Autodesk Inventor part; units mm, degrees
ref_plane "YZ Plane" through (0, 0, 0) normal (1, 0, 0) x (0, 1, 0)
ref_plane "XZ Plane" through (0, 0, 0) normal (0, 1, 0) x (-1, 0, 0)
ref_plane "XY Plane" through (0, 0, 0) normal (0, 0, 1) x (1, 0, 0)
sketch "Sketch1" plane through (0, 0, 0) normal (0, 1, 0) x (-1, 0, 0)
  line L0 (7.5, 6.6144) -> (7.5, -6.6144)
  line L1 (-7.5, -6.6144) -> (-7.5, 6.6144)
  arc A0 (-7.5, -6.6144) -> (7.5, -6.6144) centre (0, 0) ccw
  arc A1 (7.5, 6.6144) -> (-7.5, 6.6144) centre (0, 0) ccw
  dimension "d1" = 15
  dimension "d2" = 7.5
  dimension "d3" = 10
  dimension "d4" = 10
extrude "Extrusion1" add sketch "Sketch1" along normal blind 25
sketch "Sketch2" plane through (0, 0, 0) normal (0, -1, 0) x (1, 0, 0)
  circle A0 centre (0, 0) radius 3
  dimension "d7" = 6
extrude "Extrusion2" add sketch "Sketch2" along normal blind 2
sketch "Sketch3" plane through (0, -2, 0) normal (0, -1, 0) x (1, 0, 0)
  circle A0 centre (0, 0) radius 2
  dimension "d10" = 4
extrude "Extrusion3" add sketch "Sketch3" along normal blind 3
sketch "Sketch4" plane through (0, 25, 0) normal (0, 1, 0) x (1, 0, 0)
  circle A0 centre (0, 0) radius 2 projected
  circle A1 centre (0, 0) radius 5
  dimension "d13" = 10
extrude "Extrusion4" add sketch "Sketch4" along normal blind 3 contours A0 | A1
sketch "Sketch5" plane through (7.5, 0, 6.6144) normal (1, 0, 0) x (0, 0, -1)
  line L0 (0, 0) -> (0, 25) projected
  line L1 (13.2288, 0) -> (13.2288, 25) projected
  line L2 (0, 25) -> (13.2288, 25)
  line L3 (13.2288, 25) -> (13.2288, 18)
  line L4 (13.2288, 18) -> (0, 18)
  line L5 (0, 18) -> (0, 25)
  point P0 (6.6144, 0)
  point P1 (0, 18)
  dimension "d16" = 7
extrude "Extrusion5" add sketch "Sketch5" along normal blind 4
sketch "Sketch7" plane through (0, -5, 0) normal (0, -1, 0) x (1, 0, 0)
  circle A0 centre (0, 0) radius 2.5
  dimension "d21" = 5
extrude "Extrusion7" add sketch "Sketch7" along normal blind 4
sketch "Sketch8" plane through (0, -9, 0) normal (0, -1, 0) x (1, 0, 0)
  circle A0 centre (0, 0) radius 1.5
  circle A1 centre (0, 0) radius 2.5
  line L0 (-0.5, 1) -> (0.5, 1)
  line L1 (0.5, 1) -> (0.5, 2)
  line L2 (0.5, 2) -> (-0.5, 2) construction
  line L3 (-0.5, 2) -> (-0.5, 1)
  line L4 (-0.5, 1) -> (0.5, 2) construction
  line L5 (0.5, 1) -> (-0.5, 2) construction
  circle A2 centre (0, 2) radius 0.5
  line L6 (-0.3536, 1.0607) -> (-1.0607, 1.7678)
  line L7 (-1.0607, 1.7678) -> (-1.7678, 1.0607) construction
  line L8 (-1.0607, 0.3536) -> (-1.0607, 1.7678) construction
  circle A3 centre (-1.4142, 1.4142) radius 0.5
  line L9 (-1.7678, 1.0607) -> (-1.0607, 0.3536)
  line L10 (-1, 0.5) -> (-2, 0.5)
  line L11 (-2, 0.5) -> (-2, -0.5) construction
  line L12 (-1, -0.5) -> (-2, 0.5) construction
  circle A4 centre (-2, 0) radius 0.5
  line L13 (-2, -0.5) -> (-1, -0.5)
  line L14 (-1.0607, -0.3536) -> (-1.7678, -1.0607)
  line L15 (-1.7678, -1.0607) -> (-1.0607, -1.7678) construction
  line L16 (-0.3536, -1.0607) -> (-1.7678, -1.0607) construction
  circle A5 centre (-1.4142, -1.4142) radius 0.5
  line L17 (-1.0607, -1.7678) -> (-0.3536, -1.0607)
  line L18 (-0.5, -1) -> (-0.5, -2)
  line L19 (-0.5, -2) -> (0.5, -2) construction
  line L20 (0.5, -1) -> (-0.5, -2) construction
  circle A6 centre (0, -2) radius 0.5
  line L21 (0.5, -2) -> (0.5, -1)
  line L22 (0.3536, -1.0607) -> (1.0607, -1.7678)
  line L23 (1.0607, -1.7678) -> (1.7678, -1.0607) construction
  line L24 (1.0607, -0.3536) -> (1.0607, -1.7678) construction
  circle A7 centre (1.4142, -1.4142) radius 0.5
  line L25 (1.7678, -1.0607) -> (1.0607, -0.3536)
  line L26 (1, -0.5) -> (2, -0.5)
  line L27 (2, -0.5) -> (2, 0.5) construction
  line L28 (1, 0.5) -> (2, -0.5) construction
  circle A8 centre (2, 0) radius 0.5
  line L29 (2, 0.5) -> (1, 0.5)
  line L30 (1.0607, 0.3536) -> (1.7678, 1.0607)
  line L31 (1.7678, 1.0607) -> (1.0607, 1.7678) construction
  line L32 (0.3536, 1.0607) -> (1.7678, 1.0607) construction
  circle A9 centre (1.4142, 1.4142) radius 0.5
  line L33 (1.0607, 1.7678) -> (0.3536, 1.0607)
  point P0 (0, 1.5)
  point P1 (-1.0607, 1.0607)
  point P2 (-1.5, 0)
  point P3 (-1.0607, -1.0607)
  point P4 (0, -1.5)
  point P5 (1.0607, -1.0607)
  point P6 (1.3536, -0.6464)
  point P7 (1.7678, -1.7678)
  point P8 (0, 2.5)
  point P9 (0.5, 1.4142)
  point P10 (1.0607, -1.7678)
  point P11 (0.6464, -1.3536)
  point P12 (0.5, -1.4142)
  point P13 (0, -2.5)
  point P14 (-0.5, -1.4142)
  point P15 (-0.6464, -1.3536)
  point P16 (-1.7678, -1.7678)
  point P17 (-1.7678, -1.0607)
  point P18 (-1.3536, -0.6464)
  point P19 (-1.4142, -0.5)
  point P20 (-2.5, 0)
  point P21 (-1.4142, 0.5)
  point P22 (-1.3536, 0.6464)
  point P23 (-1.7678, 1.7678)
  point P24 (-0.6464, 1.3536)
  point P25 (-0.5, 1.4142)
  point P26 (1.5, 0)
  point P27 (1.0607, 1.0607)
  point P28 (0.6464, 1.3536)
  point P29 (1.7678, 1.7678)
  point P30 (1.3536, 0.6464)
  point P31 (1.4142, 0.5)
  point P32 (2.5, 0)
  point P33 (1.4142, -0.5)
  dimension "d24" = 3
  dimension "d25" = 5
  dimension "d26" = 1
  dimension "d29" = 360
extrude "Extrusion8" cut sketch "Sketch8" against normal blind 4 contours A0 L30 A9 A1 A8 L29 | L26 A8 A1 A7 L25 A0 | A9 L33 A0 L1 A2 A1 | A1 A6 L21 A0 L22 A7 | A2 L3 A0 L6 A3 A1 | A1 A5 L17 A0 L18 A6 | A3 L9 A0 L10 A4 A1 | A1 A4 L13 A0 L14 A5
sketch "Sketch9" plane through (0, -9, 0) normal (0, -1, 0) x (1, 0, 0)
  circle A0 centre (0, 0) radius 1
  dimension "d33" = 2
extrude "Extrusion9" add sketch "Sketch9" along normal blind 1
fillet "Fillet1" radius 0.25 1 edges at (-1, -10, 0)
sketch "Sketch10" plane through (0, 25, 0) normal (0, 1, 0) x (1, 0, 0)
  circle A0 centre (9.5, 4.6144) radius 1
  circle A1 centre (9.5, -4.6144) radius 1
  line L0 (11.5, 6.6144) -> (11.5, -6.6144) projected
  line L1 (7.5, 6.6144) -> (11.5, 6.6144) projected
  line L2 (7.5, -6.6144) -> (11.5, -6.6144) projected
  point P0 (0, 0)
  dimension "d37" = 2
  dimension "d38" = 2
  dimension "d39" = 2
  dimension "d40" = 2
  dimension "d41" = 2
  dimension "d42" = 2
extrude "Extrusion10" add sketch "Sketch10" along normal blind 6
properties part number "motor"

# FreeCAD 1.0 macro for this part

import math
import FreeCAD as App
import Part
import Sketcher
from FreeCAD import Vector
Q = App.Units.Quantity


def edges_at(feature, points):
    """Names of the edges that pass closest to the given points."""
    edges = feature.Shape.Edges
    near = lambda p: min(range(len(edges)), key=lambda i: edges[i].distToShape(Part.Vertex(*p))[0])
    return sorted({f"Edge{near(p) + 1}" for p in points})

doc = App.newDocument("Part")
params = doc.addObject("Spreadsheet::Sheet", "Params")
for row, (alias, value) in enumerate([
    ("sketch1_radius", "10 mm"),
    ("pad1_length", "25 mm"),
    ("sketch2_diameter", "6 mm"),
    ("pad2_length", "2 mm"),
    ("sketch3_diameter", "4 mm"),
    ("pad3_length", "3 mm"),
    ("sketch4_diameter", "10 mm"),
    ("pad4_length", "3 mm"),
    ("sketch5_width", "7 mm"),
    ("pad5_length", "4 mm"),
    ("sketch6_diameter", "5 mm"),
    ("pad6_length", "4 mm"),
    ("sketch7_radius", "1.5 mm"),
    ("sketch7_radius2", "0.5 mm"),
    ("pocket1_length", "4 mm"),
    ("sketch8_diameter", "2 mm"),
    ("pad7_length", "1 mm"),
    ("fillet_radius", "0.25 mm"),
    ("sketch9_diameter", "2 mm"),
    ("pad8_length", "6 mm"),
], start=1):
    params.set(f"A{row}", alias)
    params.set(f"B{row}", "=" + value)
    params.setAlias(f"B{row}", alias)

body = doc.addObject("PartDesign::Body", "Body")

# Sketch on XZ plane
sketch1 = body.newObject("Sketcher::SketchObject", "Sketch")
sketch1.AttachmentSupport = (doc.getObject("XZ_Plane"), [""])
sketch1.MapMode = "FlatFace"
sketch1.addGeometry([
    Part.LineSegment(Vector(-8, -7, 0), Vector(-8, 7, 0)),
    Part.ArcOfCircle(Part.Circle(Vector(0, 0, 0), Vector(0, 0, 1), 10), math.radians(41), math.radians(139)),
    Part.LineSegment(Vector(8, 7, 0), Vector(8, -7, 0)),
    Part.ArcOfCircle(Part.Circle(Vector(0, 0, 0), Vector(0, 0, 1), 10), math.radians(-139), math.radians(-41)),
], False)
sketch1.addConstraint([
    Sketcher.Constraint("Coincident", 0, 2, 1, 2),
    Sketcher.Constraint("Coincident", 1, 1, 2, 1),
    Sketcher.Constraint("Coincident", 2, 2, 3, 2),
    Sketcher.Constraint("Coincident", 3, 1, 0, 1),
    Sketcher.Constraint("Vertical", 0),
    Sketcher.Constraint("Vertical", 2),
    Sketcher.Constraint("Coincident", 1, 3, -1, 1),
    Sketcher.Constraint("Coincident", 3, 3, -1, 1),
    Sketcher.Constraint("Equal", 1, 3),
    Sketcher.Constraint("Horizontal", 0, 2, 1, 1),
    Sketcher.Constraint("Radius", 1, Q("10 mm")),
    Sketcher.Constraint("DistanceX", 0, 2, 1, 1, Q("15 mm")),
])
sketch1.setExpression("Constraints[10]", "Params.sketch1_radius")
pad1 = body.newObject("PartDesign::Pad", "Pad")
pad1.Profile = sketch1
pad1.setExpression("Length", "Params.pad1_length")
pad1.Reversed = True

# Sketch on XZ plane
sketch2 = body.newObject("Sketcher::SketchObject", "Sketch001")
sketch2.AttachmentSupport = (doc.getObject("XZ_Plane"), [""])
sketch2.MapMode = "FlatFace"
sketch2.addGeometry(Part.Circle(Vector(0, 0, 0), Vector(0, 0, 1), 3), False)
sketch2.addConstraint([
    Sketcher.Constraint("Coincident", 0, 3, -1, 1),
    Sketcher.Constraint("Diameter", 0, Q("6 mm")),
])
sketch2.setExpression("Constraints[1]", "Params.sketch2_diameter")
pad2 = body.newObject("PartDesign::Pad", "Pad001")
pad2.Profile = sketch2
pad2.setExpression("Length", "Params.pad2_length")

# Sketch on XZ plane
sketch3 = body.newObject("Sketcher::SketchObject", "Sketch002")
sketch3.AttachmentSupport = (doc.getObject("XZ_Plane"), [""])
sketch3.MapMode = "FlatFace"
sketch3.AttachmentOffset = App.Placement(Vector(0, 0, 2), App.Rotation())
sketch3.addGeometry(Part.Circle(Vector(0, 0, 0), Vector(0, 0, 1), 2), False)
sketch3.addConstraint([
    Sketcher.Constraint("Coincident", 0, 3, -1, 1),
    Sketcher.Constraint("Diameter", 0, Q("4 mm")),
])
sketch3.setExpression("Constraints[1]", "Params.sketch3_diameter")
pad3 = body.newObject("PartDesign::Pad", "Pad002")
pad3.Profile = sketch3
pad3.setExpression("Length", "Params.pad3_length")

# Sketch on XZ plane
sketch4 = body.newObject("Sketcher::SketchObject", "Sketch003")
sketch4.AttachmentSupport = (doc.getObject("XZ_Plane"), [""])
sketch4.MapMode = "FlatFace"
sketch4.AttachmentOffset = App.Placement(Vector(0, 0, -25), App.Rotation())
sketch4.addGeometry(Part.Circle(Vector(0, 0, 0), Vector(0, 0, 1), 5), False)
sketch4.addConstraint([
    Sketcher.Constraint("Coincident", 0, 3, -1, 1),
    Sketcher.Constraint("Diameter", 0, Q("10 mm")),
])
sketch4.setExpression("Constraints[1]", "Params.sketch4_diameter")
pad4 = body.newObject("PartDesign::Pad", "Pad003")
pad4.Profile = sketch4
pad4.setExpression("Length", "Params.pad4_length")
pad4.Reversed = True

# Sketch on YZ plane
sketch5 = body.newObject("Sketcher::SketchObject", "Sketch004")
sketch5.AttachmentSupport = (doc.getObject("YZ_Plane"), [""])
sketch5.MapMode = "FlatFace"
sketch5.AttachmentOffset = App.Placement(Vector(0, 0, 7.5), App.Rotation())
sketch5.addGeometry([
    Part.LineSegment(Vector(25, 7, 0), Vector(18, 7, 0)),
    Part.LineSegment(Vector(18, 7, 0), Vector(18, -7, 0)),
    Part.LineSegment(Vector(18, -7, 0), Vector(25, -7, 0)),
    Part.LineSegment(Vector(25, -7, 0), Vector(25, 7, 0)),
], False)
sketch5.addConstraint([
    Sketcher.Constraint("Coincident", 0, 2, 1, 1),
    Sketcher.Constraint("Coincident", 1, 2, 2, 1),
    Sketcher.Constraint("Coincident", 2, 2, 3, 1),
    Sketcher.Constraint("Coincident", 3, 2, 0, 1),
    Sketcher.Constraint("Horizontal", 0),
    Sketcher.Constraint("Vertical", 1),
    Sketcher.Constraint("Horizontal", 2),
    Sketcher.Constraint("Vertical", 3),
    Sketcher.Constraint("DistanceX", 0, 2, 0, 1, Q("7 mm")),
    Sketcher.Constraint("DistanceX", -1, 1, 0, 2, Q("18 mm")),
    Sketcher.Constraint("DistanceY", 1, 2, 1, 1, Q("13.2288 mm")),
    Sketcher.Constraint("DistanceY", -1, 1, 0, 2, Q("6.6144 mm")),
])
sketch5.setExpression("Constraints[8]", "Params.sketch5_width")
pad5 = body.newObject("PartDesign::Pad", "Pad004")
pad5.Profile = sketch5
pad5.setExpression("Length", "Params.pad5_length")

# Sketch on XZ plane
sketch6 = body.newObject("Sketcher::SketchObject", "Sketch005")
sketch6.AttachmentSupport = (doc.getObject("XZ_Plane"), [""])
sketch6.MapMode = "FlatFace"
sketch6.AttachmentOffset = App.Placement(Vector(0, 0, 5), App.Rotation())
sketch6.addGeometry(Part.Circle(Vector(0, 0, 0), Vector(0, 0, 1), 2.5), False)
sketch6.addConstraint([
    Sketcher.Constraint("Coincident", 0, 3, -1, 1),
    Sketcher.Constraint("Diameter", 0, Q("5 mm")),
])
sketch6.setExpression("Constraints[1]", "Params.sketch6_diameter")
pad6 = body.newObject("PartDesign::Pad", "Pad005")
pad6.Profile = sketch6
pad6.setExpression("Length", "Params.pad6_length")

# Sketch on XZ plane
sketch7 = body.newObject("Sketcher::SketchObject", "Sketch006")
sketch7.AttachmentSupport = (doc.getObject("XZ_Plane"), [""])
sketch7.MapMode = "FlatFace"
sketch7.AttachmentOffset = App.Placement(Vector(0, 0, 9), App.Rotation())
sketch7.addGeometry([
    Part.ArcOfCircle(Part.Circle(Vector(0, 0, 0), Vector(0, 0, 1), 1.5), math.radians(19.47), math.radians(25.53)),  # 0
    Part.LineSegment(Vector(1.41, 0.5, 0), Vector(2, 0.5, 0)),  # 1
    Part.ArcOfCircle(Part.Circle(Vector(2, 0, 0), Vector(0, 0, 1), 0.5), math.radians(0), math.radians(90)),  # 2
    Part.ArcOfCircle(Part.Circle(Vector(0, 0, 0), Vector(0, 0, 1), 2.5), math.radians(0), math.radians(45)),  # 3
    Part.ArcOfCircle(Part.Circle(Vector(1.41, 1.41, 0), Vector(0, 0, 1), 0.5), math.radians(-45), math.radians(45)),  # 4
    Part.LineSegment(Vector(1.77, 1.06, 0), Vector(1.35, 0.65, 0)),  # 5
    Part.LineSegment(Vector(2, -0.5, 0), Vector(1.41, -0.5, 0)),  # 6
    Part.ArcOfCircle(Part.Circle(Vector(0, 0, 0), Vector(0, 0, 1), 1.5), math.radians(-25.53), math.radians(-19.47)),  # 7
    Part.LineSegment(Vector(1.35, -0.65, 0), Vector(1.77, -1.06, 0)),  # 8
    Part.ArcOfCircle(Part.Circle(Vector(1.41, -1.41, 0), Vector(0, 0, 1), 0.5), math.radians(-45), math.radians(45)),  # 9
    Part.ArcOfCircle(Part.Circle(Vector(0, 0, 0), Vector(0, 0, 1), 2.5), math.radians(-45), math.radians(0)),  # 10
    Part.ArcOfCircle(Part.Circle(Vector(2, 0, 0), Vector(0, 0, 1), 0.5), math.radians(-90), math.radians(0)),  # 11
    Part.ArcOfCircle(Part.Circle(Vector(1.41, 1.41, 0), Vector(0, 0, 1), 0.5), math.radians(45), math.radians(135)),  # 12
    Part.ArcOfCircle(Part.Circle(Vector(0, 0, 0), Vector(0, 0, 1), 2.5), math.radians(45), math.radians(90)),  # 13
    Part.ArcOfCircle(Part.Circle(Vector(0, 2, 0), Vector(0, 0, 1), 0.5), math.radians(0), math.radians(90)),  # 14
    Part.LineSegment(Vector(0.5, 2, 0), Vector(0.5, 1.41, 0)),  # 15
    Part.ArcOfCircle(Part.Circle(Vector(0, 0, 0), Vector(0, 0, 1), 1.5), math.radians(64.47), math.radians(70.53)),  # 16
    Part.LineSegment(Vector(0.65, 1.35, 0), Vector(1.06, 1.77, 0)),  # 17
    Part.ArcOfCircle(Part.Circle(Vector(0, 0, 0), Vector(0, 0, 1), 2.5), math.radians(-90), math.radians(-45)),  # 18
    Part.ArcOfCircle(Part.Circle(Vector(1.41, -1.41, 0), Vector(0, 0, 1), 0.5), math.radians(-135), math.radians(-45)),  # 19
    Part.LineSegment(Vector(1.06, -1.77, 0), Vector(0.65, -1.35, 0)),  # 20
    Part.ArcOfCircle(Part.Circle(Vector(0, 0, 0), Vector(0, 0, 1), 1.5), math.radians(-70.53), math.radians(-64.47)),  # 21
    Part.LineSegment(Vector(0.5, -1.41, 0), Vector(0.5, -2, 0)),  # 22
    Part.ArcOfCircle(Part.Circle(Vector(0, -2, 0), Vector(0, 0, 1), 0.5), math.radians(-90), math.radians(0)),  # 23
    Part.ArcOfCircle(Part.Circle(Vector(0, 2, 0), Vector(0, 0, 1), 0.5), math.radians(90), math.radians(180)),  # 24
    Part.ArcOfCircle(Part.Circle(Vector(0, 0, 0), Vector(0, 0, 1), 2.5), math.radians(90), math.radians(135)),  # 25
    Part.ArcOfCircle(Part.Circle(Vector(-1.41, 1.41, 0), Vector(0, 0, 1), 0.5), math.radians(45), math.radians(135)),  # 26
    Part.LineSegment(Vector(-1.06, 1.77, 0), Vector(-0.65, 1.35, 0)),  # 27
    Part.ArcOfCircle(Part.Circle(Vector(0, 0, 0), Vector(0, 0, 1), 1.5), math.radians(109.47), math.radians(115.53)),  # 28
    Part.LineSegment(Vector(-0.5, 1.41, 0), Vector(-0.5, 2, 0)),  # 29
    Part.ArcOfCircle(Part.Circle(Vector(0, 0, 0), Vector(0, 0, 1), 2.5), math.radians(-135), math.radians(-90)),  # 30
    Part.ArcOfCircle(Part.Circle(Vector(0, -2, 0), Vector(0, 0, 1), 0.5), math.radians(180), math.radians(270)),  # 31
    Part.LineSegment(Vector(-0.5, -2, 0), Vector(-0.5, -1.41, 0)),  # 32
    Part.ArcOfCircle(Part.Circle(Vector(0, 0, 0), Vector(0, 0, 1), 1.5), math.radians(-115.53), math.radians(-109.47)),  # 33
    Part.LineSegment(Vector(-0.65, -1.35, 0), Vector(-1.06, -1.77, 0)),  # 34
    Part.ArcOfCircle(Part.Circle(Vector(-1.41, -1.41, 0), Vector(0, 0, 1), 0.5), math.radians(-135), math.radians(-45)),  # 35
    Part.ArcOfCircle(Part.Circle(Vector(-1.41, 1.41, 0), Vector(0, 0, 1), 0.5), math.radians(135), math.radians(225)),  # 36
    Part.ArcOfCircle(Part.Circle(Vector(0, 0, 0), Vector(0, 0, 1), 2.5), math.radians(135), math.radians(180)),  # 37
    Part.ArcOfCircle(Part.Circle(Vector(-2, 0, 0), Vector(0, 0, 1), 0.5), math.radians(90), math.radians(180)),  # 38
    Part.LineSegment(Vector(-2, 0.5, 0), Vector(-1.41, 0.5, 0)),  # 39
    Part.ArcOfCircle(Part.Circle(Vector(0, 0, 0), Vector(0, 0, 1), 1.5), math.radians(154.47), math.radians(160.53)),  # 40
    Part.LineSegment(Vector(-1.35, 0.65, 0), Vector(-1.77, 1.06, 0)),  # 41
    Part.ArcOfCircle(Part.Circle(Vector(0, 0, 0), Vector(0, 0, 1), 2.5), math.radians(180), math.radians(225)),  # 42
    Part.ArcOfCircle(Part.Circle(Vector(-1.41, -1.41, 0), Vector(0, 0, 1), 0.5), math.radians(135), math.radians(225)),  # 43
    Part.LineSegment(Vector(-1.77, -1.06, 0), Vector(-1.35, -0.65, 0)),  # 44
    Part.ArcOfCircle(Part.Circle(Vector(0, 0, 0), Vector(0, 0, 1), 1.5), math.radians(-160.53), math.radians(-154.47)),  # 45
    Part.LineSegment(Vector(-1.41, -0.5, 0), Vector(-2, -0.5, 0)),  # 46
    Part.ArcOfCircle(Part.Circle(Vector(-2, 0, 0), Vector(0, 0, 1), 0.5), math.radians(180), math.radians(270)),  # 47
], False)
sketch7.addConstraint([
    Sketcher.Constraint("Coincident", 0, 1, 1, 1),
    Sketcher.Constraint("Tangent", 1, 2, 2, 2),
    Sketcher.Constraint("Tangent", 2, 1, 3, 1),
    Sketcher.Constraint("Tangent", 3, 2, 4, 2),
    Sketcher.Constraint("Tangent", 4, 1, 5, 1),
    Sketcher.Constraint("Coincident", 5, 2, 0, 2),
    Sketcher.Constraint("Coincident", 6, 2, 7, 2),
    Sketcher.Constraint("Coincident", 7, 1, 8, 1),
    Sketcher.Constraint("Tangent", 8, 2, 9, 2),
    Sketcher.Constraint("Tangent", 9, 1, 10, 1),
    Sketcher.Constraint("Tangent", 10, 2, 11, 2),
    Sketcher.Constraint("Tangent", 11, 1, 6, 1),
    Sketcher.Constraint("Tangent", 12, 1, 13, 1),
    Sketcher.Constraint("Tangent", 13, 2, 14, 2),
    Sketcher.Constraint("Tangent", 14, 1, 15, 1),
    Sketcher.Constraint("Coincident", 15, 2, 16, 2),
    Sketcher.Constraint("Coincident", 16, 1, 17, 1),
    Sketcher.Constraint("Tangent", 17, 2, 12, 2),
    Sketcher.Constraint("Tangent", 18, 2, 19, 2),
    Sketcher.Constraint("Tangent", 19, 1, 20, 1),
    Sketcher.Constraint("Coincident", 20, 2, 21, 2),
    Sketcher.Constraint("Coincident", 21, 1, 22, 1),
    Sketcher.Constraint("Tangent", 22, 2, 23, 2),
    Sketcher.Constraint("Tangent", 23, 1, 18, 1),
    Sketcher.Constraint("Tangent", 24, 1, 25, 1),
    Sketcher.Constraint("Tangent", 25, 2, 26, 2),
    Sketcher.Constraint("Tangent", 26, 1, 27, 1),
    Sketcher.Constraint("Coincident", 27, 2, 28, 2),
    Sketcher.Constraint("Coincident", 28, 1, 29, 1),
    Sketcher.Constraint("Tangent", 29, 2, 24, 2),
    Sketcher.Constraint("Tangent", 30, 2, 31, 2),
    Sketcher.Constraint("Tangent", 31, 1, 32, 1),
    Sketcher.Constraint("Coincident", 32, 2, 33, 2),
    Sketcher.Constraint("Coincident", 33, 1, 34, 1),
    Sketcher.Constraint("Tangent", 34, 2, 35, 2),
    Sketcher.Constraint("Tangent", 35, 1, 30, 1),
    Sketcher.Constraint("Tangent", 36, 1, 37, 1),
    Sketcher.Constraint("Tangent", 37, 2, 38, 2),
    Sketcher.Constraint("Tangent", 38, 1, 39, 1),
    Sketcher.Constraint("Coincident", 39, 2, 40, 2),
    Sketcher.Constraint("Coincident", 40, 1, 41, 1),
    Sketcher.Constraint("Tangent", 41, 2, 36, 2),
    Sketcher.Constraint("Tangent", 42, 2, 43, 2),
    Sketcher.Constraint("Tangent", 43, 1, 44, 1),
    Sketcher.Constraint("Coincident", 44, 2, 45, 2),
    Sketcher.Constraint("Coincident", 45, 1, 46, 1),
    Sketcher.Constraint("Tangent", 46, 2, 47, 2),
    Sketcher.Constraint("Tangent", 47, 1, 42, 1),
    Sketcher.Constraint("Horizontal", 1),
    Sketcher.Constraint("Horizontal", 6),
    Sketcher.Constraint("Vertical", 15),
    Sketcher.Constraint("Vertical", 22),
    Sketcher.Constraint("Vertical", 29),
    Sketcher.Constraint("Vertical", 32),
    Sketcher.Constraint("Horizontal", 39),
    Sketcher.Constraint("Horizontal", 46),
    Sketcher.Constraint("Coincident", 0, 3, -1, 1),
    Sketcher.Constraint("Coincident", 3, 3, -1, 1),
    Sketcher.Constraint("Coincident", 7, 3, -1, 1),
    Sketcher.Constraint("Coincident", 10, 3, -1, 1),
    Sketcher.Constraint("Coincident", 13, 3, -1, 1),
    Sketcher.Constraint("Coincident", 16, 3, -1, 1),
    Sketcher.Constraint("Coincident", 18, 3, -1, 1),
    Sketcher.Constraint("Coincident", 21, 3, -1, 1),
    Sketcher.Constraint("Coincident", 25, 3, -1, 1),
    Sketcher.Constraint("Coincident", 28, 3, -1, 1),
    Sketcher.Constraint("Coincident", 30, 3, -1, 1),
    Sketcher.Constraint("Coincident", 33, 3, -1, 1),
    Sketcher.Constraint("Coincident", 37, 3, -1, 1),
    Sketcher.Constraint("Coincident", 40, 3, -1, 1),
    Sketcher.Constraint("Coincident", 42, 3, -1, 1),
    Sketcher.Constraint("Coincident", 45, 3, -1, 1),
    Sketcher.Constraint("Coincident", 11, 3, 2, 3),
    Sketcher.Constraint("Coincident", 12, 3, 4, 3),
    Sketcher.Constraint("Coincident", 19, 3, 9, 3),
    Sketcher.Constraint("Coincident", 24, 3, 14, 3),
    Sketcher.Constraint("Coincident", 31, 3, 23, 3),
    Sketcher.Constraint("Coincident", 36, 3, 26, 3),
    Sketcher.Constraint("Coincident", 43, 3, 35, 3),
    Sketcher.Constraint("Coincident", 47, 3, 38, 3),
    Sketcher.Constraint("Equal", 2, 4),
    Sketcher.Constraint("Equal", 0, 7),
    Sketcher.Constraint("Equal", 4, 9),
    Sketcher.Constraint("Equal", 3, 10),
    Sketcher.Constraint("Equal", 11, 12),
    Sketcher.Constraint("Equal", 12, 14),
    Sketcher.Constraint("Equal", 7, 16),
    Sketcher.Constraint("Equal", 13, 18),
    Sketcher.Constraint("Equal", 16, 21),
    Sketcher.Constraint("Equal", 19, 23),
    Sketcher.Constraint("Equal", 23, 24),
    Sketcher.Constraint("Equal", 24, 26),
    Sketcher.Constraint("Equal", 21, 28),
    Sketcher.Constraint("Equal", 25, 30),
    Sketcher.Constraint("Equal", 28, 33),
    Sketcher.Constraint("Equal", 31, 35),
    Sketcher.Constraint("Equal", 35, 36),
    Sketcher.Constraint("Equal", 36, 38),
    Sketcher.Constraint("Equal", 33, 40),
    Sketcher.Constraint("Equal", 37, 42),
    Sketcher.Constraint("Equal", 40, 45),
    Sketcher.Constraint("Symmetric", 19, 1, 26, 1, -1, 1),
    Sketcher.Constraint("Symmetric", 17, 2, 34, 2, -1, 1),
    Sketcher.Constraint("Symmetric", 17, 2, 26, 1, -2),
    Sketcher.Constraint("PointOnObject", 2, 3, -1),
    Sketcher.Constraint("PointOnObject", 14, 3, -2),
    Sketcher.Constraint("PointOnObject", 23, 3, -2),
    Sketcher.Constraint("PointOnObject", 38, 3, -1),
    Sketcher.Constraint("Perpendicular", 5, 8),
    Sketcher.Constraint("Perpendicular", 8, 17),
    Sketcher.Constraint("Perpendicular", 17, 20),
    Sketcher.Constraint("Perpendicular", 34, 41),
    Sketcher.Constraint("Perpendicular", 41, 44),
    Sketcher.Constraint("Horizontal", 36, 3, 15, 2),
    Sketcher.Constraint("Horizontal", 12, 1, 17, 2),
    Sketcher.Constraint("Radius", 0, Q("1.5 mm")),
    Sketcher.Constraint("Radius", 2, Q("0.5 mm")),
])
sketch7.setExpression("Constraints[115]", "Params.sketch7_radius")
sketch7.setExpression("Constraints[116]", "Params.sketch7_radius2")
pocket1 = body.newObject("PartDesign::Pocket", "Pocket")
pocket1.Profile = sketch7
pocket1.setExpression("Length", "Params.pocket1_length")

# Sketch on XZ plane
sketch8 = body.newObject("Sketcher::SketchObject", "Sketch007")
sketch8.AttachmentSupport = (doc.getObject("XZ_Plane"), [""])
sketch8.MapMode = "FlatFace"
sketch8.AttachmentOffset = App.Placement(Vector(0, 0, 9), App.Rotation())
sketch8.addGeometry(Part.Circle(Vector(0, 0, 0), Vector(0, 0, 1), 1), False)
sketch8.addConstraint([
    Sketcher.Constraint("Coincident", 0, 3, -1, 1),
    Sketcher.Constraint("Diameter", 0, Q("2 mm")),
])
sketch8.setExpression("Constraints[1]", "Params.sketch8_diameter")
pad7 = body.newObject("PartDesign::Pad", "Pad006")
pad7.Profile = sketch8
pad7.setExpression("Length", "Params.pad7_length")
doc.recompute()

fillet = body.newObject("PartDesign::Fillet", "Fillet")
fillet.Base = (pad7, edges_at(pad7, [(-1, -10, 0)]))
fillet.setExpression("Radius", "Params.fillet_radius")

# Sketch on XZ plane
sketch9 = body.newObject("Sketcher::SketchObject", "Sketch008")
sketch9.AttachmentSupport = (doc.getObject("XZ_Plane"), [""])
sketch9.MapMode = "FlatFace"
sketch9.AttachmentOffset = App.Placement(Vector(0, 0, -25), App.Rotation())
sketch9.addGeometry([
    Part.Circle(Vector(9.5, -4.6, 0), Vector(0, 0, 1), 1),
    Part.Circle(Vector(9.5, 4.6, 0), Vector(0, 0, 1), 1),
], False)
sketch9.addConstraint([
    Sketcher.Constraint("Equal", 0, 1),
    Sketcher.Constraint("Symmetric", 0, 3, 1, 3, -1),
    Sketcher.Constraint("Diameter", 0, Q("2 mm")),
    Sketcher.Constraint("DistanceX", -1, 1, 0, 3, Q("9.5 mm")),
    Sketcher.Constraint("DistanceY", 0, 3, -1, 1, Q("4.6144 mm")),
])
sketch9.setExpression("Constraints[2]", "Params.sketch9_diameter")
pad8 = body.newObject("PartDesign::Pad", "Pad007")
pad8.Profile = sketch9
pad8.setExpression("Length", "Params.pad8_length")
pad8.Reversed = True

doc.recompute()
